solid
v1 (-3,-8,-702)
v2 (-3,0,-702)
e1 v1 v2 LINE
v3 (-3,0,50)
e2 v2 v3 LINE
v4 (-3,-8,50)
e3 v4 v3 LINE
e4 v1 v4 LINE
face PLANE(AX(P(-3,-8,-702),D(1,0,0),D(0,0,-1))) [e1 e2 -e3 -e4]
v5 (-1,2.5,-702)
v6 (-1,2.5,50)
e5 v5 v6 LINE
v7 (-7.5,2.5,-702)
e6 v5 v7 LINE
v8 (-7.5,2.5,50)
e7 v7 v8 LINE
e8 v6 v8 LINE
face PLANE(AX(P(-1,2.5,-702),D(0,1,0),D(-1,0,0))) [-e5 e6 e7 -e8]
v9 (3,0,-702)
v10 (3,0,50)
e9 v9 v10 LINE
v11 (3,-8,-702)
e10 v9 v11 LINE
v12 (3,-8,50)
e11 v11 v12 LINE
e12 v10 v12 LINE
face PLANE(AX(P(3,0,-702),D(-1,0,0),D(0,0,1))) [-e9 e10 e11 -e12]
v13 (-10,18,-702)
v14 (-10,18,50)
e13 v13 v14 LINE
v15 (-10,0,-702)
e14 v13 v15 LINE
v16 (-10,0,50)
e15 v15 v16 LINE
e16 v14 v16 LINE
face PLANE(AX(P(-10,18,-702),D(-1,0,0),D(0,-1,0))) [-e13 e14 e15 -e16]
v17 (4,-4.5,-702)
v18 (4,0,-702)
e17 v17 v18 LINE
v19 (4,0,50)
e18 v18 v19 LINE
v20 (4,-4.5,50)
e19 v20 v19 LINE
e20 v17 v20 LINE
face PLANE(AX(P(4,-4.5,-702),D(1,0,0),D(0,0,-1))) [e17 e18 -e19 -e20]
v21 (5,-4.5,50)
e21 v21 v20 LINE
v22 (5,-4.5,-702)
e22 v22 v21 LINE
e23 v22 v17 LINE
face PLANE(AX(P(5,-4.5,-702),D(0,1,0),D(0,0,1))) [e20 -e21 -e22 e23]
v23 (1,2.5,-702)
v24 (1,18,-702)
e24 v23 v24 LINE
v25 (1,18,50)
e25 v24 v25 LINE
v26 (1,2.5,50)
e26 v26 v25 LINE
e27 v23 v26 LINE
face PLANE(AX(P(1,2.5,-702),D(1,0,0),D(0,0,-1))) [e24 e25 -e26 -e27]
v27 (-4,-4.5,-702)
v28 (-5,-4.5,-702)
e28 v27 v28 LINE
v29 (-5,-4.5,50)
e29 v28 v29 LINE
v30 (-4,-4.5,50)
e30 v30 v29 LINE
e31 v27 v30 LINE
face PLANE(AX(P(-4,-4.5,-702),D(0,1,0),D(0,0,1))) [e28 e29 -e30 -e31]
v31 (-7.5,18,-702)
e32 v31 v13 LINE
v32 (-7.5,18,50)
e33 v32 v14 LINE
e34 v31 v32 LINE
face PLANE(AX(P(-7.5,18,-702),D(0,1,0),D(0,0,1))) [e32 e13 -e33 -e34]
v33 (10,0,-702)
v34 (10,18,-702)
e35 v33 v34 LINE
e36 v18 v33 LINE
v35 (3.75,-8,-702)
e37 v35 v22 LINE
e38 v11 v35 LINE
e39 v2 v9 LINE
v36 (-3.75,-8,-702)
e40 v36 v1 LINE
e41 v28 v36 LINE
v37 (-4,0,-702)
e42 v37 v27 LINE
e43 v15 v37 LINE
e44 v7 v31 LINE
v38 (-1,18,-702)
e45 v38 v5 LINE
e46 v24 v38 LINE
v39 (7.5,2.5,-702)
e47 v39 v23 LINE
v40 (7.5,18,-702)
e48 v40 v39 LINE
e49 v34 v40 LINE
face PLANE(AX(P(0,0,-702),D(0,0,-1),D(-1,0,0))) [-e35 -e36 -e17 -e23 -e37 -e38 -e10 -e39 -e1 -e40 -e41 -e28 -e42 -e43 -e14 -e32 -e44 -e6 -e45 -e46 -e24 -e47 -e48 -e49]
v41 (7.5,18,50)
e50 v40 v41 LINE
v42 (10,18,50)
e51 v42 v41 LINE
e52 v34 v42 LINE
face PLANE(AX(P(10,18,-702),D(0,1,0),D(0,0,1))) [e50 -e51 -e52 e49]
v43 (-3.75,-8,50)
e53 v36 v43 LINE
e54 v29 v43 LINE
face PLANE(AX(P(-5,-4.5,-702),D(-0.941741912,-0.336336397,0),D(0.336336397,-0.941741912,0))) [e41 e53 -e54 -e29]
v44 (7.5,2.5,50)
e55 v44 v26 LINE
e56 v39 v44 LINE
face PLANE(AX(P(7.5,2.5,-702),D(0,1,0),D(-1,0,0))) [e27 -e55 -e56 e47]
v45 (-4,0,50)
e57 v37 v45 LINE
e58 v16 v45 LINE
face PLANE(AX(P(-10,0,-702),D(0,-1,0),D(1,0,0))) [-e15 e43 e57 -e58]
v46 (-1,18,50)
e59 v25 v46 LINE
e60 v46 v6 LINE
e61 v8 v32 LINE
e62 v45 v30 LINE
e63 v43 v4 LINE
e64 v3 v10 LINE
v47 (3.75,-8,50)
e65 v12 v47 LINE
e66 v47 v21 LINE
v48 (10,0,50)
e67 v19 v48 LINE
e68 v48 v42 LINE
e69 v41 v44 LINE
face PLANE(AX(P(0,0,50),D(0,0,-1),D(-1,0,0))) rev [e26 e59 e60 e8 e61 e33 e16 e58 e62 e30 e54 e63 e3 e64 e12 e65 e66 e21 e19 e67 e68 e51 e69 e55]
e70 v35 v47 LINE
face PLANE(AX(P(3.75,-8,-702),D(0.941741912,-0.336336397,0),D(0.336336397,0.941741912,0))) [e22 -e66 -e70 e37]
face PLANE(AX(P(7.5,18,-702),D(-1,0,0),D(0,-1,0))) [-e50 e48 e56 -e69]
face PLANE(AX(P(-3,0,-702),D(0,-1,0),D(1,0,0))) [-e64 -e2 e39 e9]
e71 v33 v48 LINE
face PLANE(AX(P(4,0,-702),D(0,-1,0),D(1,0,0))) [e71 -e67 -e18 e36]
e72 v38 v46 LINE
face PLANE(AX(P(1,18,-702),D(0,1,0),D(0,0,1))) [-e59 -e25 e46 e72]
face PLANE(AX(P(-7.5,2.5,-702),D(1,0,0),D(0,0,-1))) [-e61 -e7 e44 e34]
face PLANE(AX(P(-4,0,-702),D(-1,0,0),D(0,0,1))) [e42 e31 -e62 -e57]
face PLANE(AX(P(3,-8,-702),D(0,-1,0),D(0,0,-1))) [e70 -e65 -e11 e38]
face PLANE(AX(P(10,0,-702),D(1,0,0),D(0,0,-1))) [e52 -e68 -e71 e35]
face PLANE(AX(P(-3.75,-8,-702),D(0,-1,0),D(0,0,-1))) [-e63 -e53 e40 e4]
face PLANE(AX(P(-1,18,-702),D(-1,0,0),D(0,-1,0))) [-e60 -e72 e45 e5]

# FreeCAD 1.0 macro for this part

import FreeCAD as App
import Part
import Sketcher
from FreeCAD import Vector
Q = App.Units.Quantity


def add_polygon(sketch, points):
    """Adds a closed chain of lines whose ends are joined by coincident constraints."""
    first, n = sketch.GeometryCount, len(points)
    for a, b in zip(points, points[1:] + points[:1]):
        sketch.addGeometry(Part.LineSegment(App.Vector(*a, 0), App.Vector(*b, 0)), False)
    for i in range(n):
        sketch.addConstraint(Sketcher.Constraint("Coincident", first + i, 2, first + (i + 1) % n, 1))

doc = App.newDocument("Part")
body = doc.addObject("PartDesign::Body", "Body")

# Sketch on XY plane
sketch1 = doc.addObject("Sketcher::SketchObject", "Sketch")
body.addObject(sketch1)
sketch1.AttachmentSupport = (doc.XY_Plane, [""])
sketch1.MapMode = "FlatFace"
sketch1.AttachmentOffset = App.Placement(Vector(0, 0, 50), App.Rotation())
add_polygon(sketch1, [(-1, 2.5), (-7.5, 2.5), (-7.5, 18), (-10, 18), (-10, 0), (-4, 0), (-4, -4.5), (-5, -4.5), (-3.75, -8), (-3, -8), (-3, 0), (3, 0), (3, -8), (3.75, -8), (5, -4.5), (4, -4.5), (4, 0), (10, 0), (10, 18), (7.5, 18), (7.5, 2.5), (1, 2.5), (1, 18), (-1, 18)])  # lines 0-23
sketch1.addConstraint([
    Sketcher.Constraint("Horizontal", 0),
    Sketcher.Constraint("Vertical", 1),
    Sketcher.Constraint("Horizontal", 2),
    Sketcher.Constraint("Vertical", 3),
    Sketcher.Constraint("Horizontal", 4),
    Sketcher.Constraint("Vertical", 5),
    Sketcher.Constraint("Horizontal", 6),
    Sketcher.Constraint("Horizontal", 8),
    Sketcher.Constraint("Vertical", 9),
    Sketcher.Constraint("Horizontal", 10),
    Sketcher.Constraint("Vertical", 11),
    Sketcher.Constraint("Horizontal", 12),
    Sketcher.Constraint("Horizontal", 14),
    Sketcher.Constraint("Vertical", 15),
    Sketcher.Constraint("Horizontal", 16),
    Sketcher.Constraint("Vertical", 17),
    Sketcher.Constraint("Horizontal", 18),
    Sketcher.Constraint("Vertical", 19),
    Sketcher.Constraint("Horizontal", 20),
    Sketcher.Constraint("Vertical", 21),
    Sketcher.Constraint("Horizontal", 22),
    Sketcher.Constraint("Vertical", 23),
    Sketcher.Constraint("Symmetric", 9, 2, 10, 2, -1, 1),
    Sketcher.Constraint("Symmetric", 4, 2, 15, 2, -1, 1),
    Sketcher.Constraint("Symmetric", 7, 2, 12, 2, -2),
    Sketcher.Constraint("Symmetric", 6, 2, 13, 2, -2),
    Sketcher.Constraint("Symmetric", 3, 2, 16, 2, -2),
    Sketcher.Constraint("Symmetric", 1, 2, 18, 2, -2),
    Sketcher.Constraint("Symmetric", 20, 2, 23, 2, -2),
    Sketcher.Constraint("Horizontal", 18, 2, 21, 2),
    Sketcher.Constraint("Equal", 4, 10),
    Sketcher.Constraint("DistanceX", 4, 1, 4, 2, Q("6 mm")),
    Sketcher.Constraint("DistanceX", 6, 2, 6, 1, Q("1 mm")),
    Sketcher.Constraint("DistanceX", 22, 2, 22, 1, Q("2 mm")),
    Sketcher.Constraint("DistanceY", 3, 2, 3, 1, Q("18 mm")),
    Sketcher.Constraint("DistanceY", 9, 1, 9, 2, Q("8 mm")),
    Sketcher.Constraint("DistanceX", 0, 2, 0, 1, Q("6.5 mm")),
    Sketcher.Constraint("DistanceX", 2, 2, 2, 1, Q("2.5 mm")),
    Sketcher.Constraint("DistanceY", 1, 1, 1, 2, Q("15.5 mm")),
    Sketcher.Constraint("DistanceY", 5, 2, 5, 1, Q("4.5 mm")),
    Sketcher.Constraint("DistanceX", 8, 1, 8, 2, Q("0.75 mm")),
])
pad1 = doc.addObject("PartDesign::Pad", "Pad")
body.addObject(pad1)
pad1.Profile = sketch1
pad1.Length = 752
pad1.Reversed = True

doc.recompute()
